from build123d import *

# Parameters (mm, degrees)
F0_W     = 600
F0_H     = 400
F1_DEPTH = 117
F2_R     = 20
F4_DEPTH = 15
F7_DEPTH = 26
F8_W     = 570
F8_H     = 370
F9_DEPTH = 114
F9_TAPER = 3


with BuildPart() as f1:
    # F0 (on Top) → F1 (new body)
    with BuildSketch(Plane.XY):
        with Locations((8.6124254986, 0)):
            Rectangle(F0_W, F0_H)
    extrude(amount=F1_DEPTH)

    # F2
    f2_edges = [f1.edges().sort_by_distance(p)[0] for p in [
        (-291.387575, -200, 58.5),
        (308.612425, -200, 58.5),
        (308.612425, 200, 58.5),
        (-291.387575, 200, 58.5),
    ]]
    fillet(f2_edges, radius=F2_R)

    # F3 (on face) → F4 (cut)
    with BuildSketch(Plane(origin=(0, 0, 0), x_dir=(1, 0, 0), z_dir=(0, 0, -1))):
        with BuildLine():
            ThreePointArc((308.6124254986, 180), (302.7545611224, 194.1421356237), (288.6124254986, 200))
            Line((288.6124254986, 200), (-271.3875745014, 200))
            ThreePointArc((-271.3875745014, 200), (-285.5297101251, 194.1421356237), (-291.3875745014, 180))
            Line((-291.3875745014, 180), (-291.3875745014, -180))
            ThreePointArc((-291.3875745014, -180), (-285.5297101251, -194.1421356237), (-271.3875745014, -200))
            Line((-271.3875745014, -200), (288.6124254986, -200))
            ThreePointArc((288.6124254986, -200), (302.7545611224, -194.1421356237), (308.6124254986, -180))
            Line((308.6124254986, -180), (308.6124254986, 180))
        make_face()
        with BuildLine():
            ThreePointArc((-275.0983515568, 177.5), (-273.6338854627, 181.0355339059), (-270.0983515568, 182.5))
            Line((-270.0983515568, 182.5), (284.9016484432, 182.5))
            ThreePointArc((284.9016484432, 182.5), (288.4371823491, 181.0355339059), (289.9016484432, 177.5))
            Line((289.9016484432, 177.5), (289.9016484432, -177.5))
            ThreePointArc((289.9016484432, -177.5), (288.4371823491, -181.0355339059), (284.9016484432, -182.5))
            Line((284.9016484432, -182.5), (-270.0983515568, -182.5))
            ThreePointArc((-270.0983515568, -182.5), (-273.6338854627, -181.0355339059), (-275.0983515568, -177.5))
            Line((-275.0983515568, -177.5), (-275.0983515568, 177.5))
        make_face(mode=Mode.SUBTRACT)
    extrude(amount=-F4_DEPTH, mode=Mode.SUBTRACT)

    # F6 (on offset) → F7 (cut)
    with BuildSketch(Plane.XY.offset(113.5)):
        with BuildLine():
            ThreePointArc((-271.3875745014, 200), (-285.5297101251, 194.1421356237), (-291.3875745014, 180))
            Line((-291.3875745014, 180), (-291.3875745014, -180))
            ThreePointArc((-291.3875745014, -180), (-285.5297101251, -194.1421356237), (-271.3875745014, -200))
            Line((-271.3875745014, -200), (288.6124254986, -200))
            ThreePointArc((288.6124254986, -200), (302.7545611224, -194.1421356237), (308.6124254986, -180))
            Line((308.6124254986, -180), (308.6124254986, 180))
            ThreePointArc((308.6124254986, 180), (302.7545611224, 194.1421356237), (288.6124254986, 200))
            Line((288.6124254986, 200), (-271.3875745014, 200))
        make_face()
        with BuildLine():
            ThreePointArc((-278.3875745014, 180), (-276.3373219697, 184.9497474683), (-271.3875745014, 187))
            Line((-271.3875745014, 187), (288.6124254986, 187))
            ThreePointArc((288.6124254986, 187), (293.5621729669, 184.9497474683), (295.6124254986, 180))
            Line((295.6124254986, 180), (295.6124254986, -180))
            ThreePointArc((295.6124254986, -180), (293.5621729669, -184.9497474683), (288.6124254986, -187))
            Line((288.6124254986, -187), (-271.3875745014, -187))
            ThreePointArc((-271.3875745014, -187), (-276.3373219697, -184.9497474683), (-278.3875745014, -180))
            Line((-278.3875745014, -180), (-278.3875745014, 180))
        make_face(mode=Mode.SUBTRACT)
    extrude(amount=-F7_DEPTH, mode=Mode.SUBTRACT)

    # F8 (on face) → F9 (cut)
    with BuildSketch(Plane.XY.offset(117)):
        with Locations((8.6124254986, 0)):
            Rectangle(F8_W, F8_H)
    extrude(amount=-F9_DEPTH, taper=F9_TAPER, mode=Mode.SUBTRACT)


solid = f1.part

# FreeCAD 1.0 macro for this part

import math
import FreeCAD as App
import Part
import Sketcher
from FreeCAD import Vector


def edges_at(feature, points):
    """Names of the edges that pass closest to the given points."""
    edges = feature.Shape.Edges
    near = lambda p: min(range(len(edges)), key=lambda i: edges[i].distToShape(Part.Vertex(*p))[0])
    return sorted({f"Edge{near(p) + 1}" for p in points})


def add_polygon(sketch, points):
    """Adds a closed chain of lines whose ends are joined by coincident constraints."""
    first, n = sketch.GeometryCount, len(points)
    for a, b in zip(points, points[1:] + points[:1]):
        sketch.addGeometry(Part.LineSegment(App.Vector(*a, 0), App.Vector(*b, 0)), False)
    for i in range(n):
        sketch.addConstraint(Sketcher.Constraint("Coincident", first + i, 2, first + (i + 1) % n, 1))

doc = App.newDocument("Part")
params = doc.addObject("Spreadsheet::Sheet", "Params")
for row, (alias, value) in enumerate([
    ("sketch1_width", "600 mm"),
    ("sketch1_height", "400 mm"),
    ("pad1_length", "117 mm"),
    ("fillet_radius", "20 mm"),
    ("sketch2_radius", "20 mm"),
    ("sketch2_radius2", "5 mm"),
    ("sketch2_width", "560 mm"),
    ("sketch2_width2", "555 mm"),
    ("sketch2_height", "360 mm"),
    ("pocket1_length", "15 mm"),
    ("sketch3_radius", "20 mm"),
    ("sketch3_radius2", "7 mm"),
    ("sketch3_width", "560 mm"),
    ("sketch3_height", "360 mm"),
    ("pocket2_length", "26 mm"),
    ("sketch4_width", "570 mm"),
    ("sketch4_height", "370 mm"),
    ("pocket3_length", "114 mm"),
    ("pocket3_taper", "-3 deg"),
], start=1):
    params.set(f"A{row}", alias)
    params.set(f"B{row}", "=" + value)
    params.setAlias(f"B{row}", alias)

body = doc.addObject("PartDesign::Body", "Body")

# Sketch on XY plane
sketch1 = body.newObject("Sketcher::SketchObject", "Sketch")
sketch1.AttachmentSupport = (doc.getObject("XY_Plane"), [""])
sketch1.MapMode = "FlatFace"
add_polygon(sketch1, [(-291.387575, 200), (-291.387575, -200), (308.612425, -200), (308.612425, 200)])  # lines 0-3
sketch1.addConstraint(Sketcher.Constraint("Vertical", 0))
sketch1.addConstraint(Sketcher.Constraint("Horizontal", 1))
sketch1.addConstraint(Sketcher.Constraint("Vertical", 2))
sketch1.addConstraint(Sketcher.Constraint("Horizontal", 3))
sketch1.addConstraint(Sketcher.Constraint("DistanceX", 1, 1, 1, 2, 600.0))
sketch1.addConstraint(Sketcher.Constraint("DistanceY", 0, 2, 0, 1, 400.0))
sketch1.addConstraint(Sketcher.Constraint("DistanceY", 0, 2, -1, 1, 200.0))
sketch1.addConstraint(Sketcher.Constraint("DistanceX", 0, 2, -1, 1, 291.387575))
sketch1.setExpression("Constraints[8]", "Params.sketch1_width")
sketch1.setExpression("Constraints[9]", "Params.sketch1_height")
pad1 = body.newObject("PartDesign::Pad", "Pad")
pad1.Profile = sketch1
pad1.setExpression("Length", "Params.pad1_length")
doc.recompute()

fillet = body.newObject("PartDesign::Fillet", "Fillet")
fillet.Base = (pad1, edges_at(pad1, [
    (-291.388, -200, 58.5),
    (308.612, -200, 58.5),
    (308.612, 200, 58.5),
    (-291.388, 200, 58.5),
]))
fillet.setExpression("Radius", "Params.fillet_radius")

# Sketch on XY plane
sketch2 = body.newObject("Sketcher::SketchObject", "Sketch001")
sketch2.AttachmentSupport = (doc.getObject("XY_Plane"), [""])
sketch2.MapMode = "FlatFace"
sketch2.addGeometry(Part.ArcOfCircle(Part.Circle(Vector(288.612425, -180, 0), Vector(0, 0, 1), 20), math.radians(-90), math.radians(0)), False)
sketch2.addGeometry(Part.LineSegment(Vector(288.612425, -200, 0), Vector(-271.387575, -200, 0)), False)
sketch2.addGeometry(Part.ArcOfCircle(Part.Circle(Vector(-271.387575, -180, 0), Vector(0, 0, 1), 20), math.radians(180), math.radians(270)), False)
sketch2.addGeometry(Part.LineSegment(Vector(-291.387575, -180, 0), Vector(-291.387575, 180, 0)), False)
sketch2.addGeometry(Part.ArcOfCircle(Part.Circle(Vector(-271.387575, 180, 0), Vector(0, 0, 1), 20), math.radians(90), math.radians(180)), False)
sketch2.addGeometry(Part.LineSegment(Vector(-271.387575, 200, 0), Vector(288.612425, 200, 0)), False)
sketch2.addGeometry(Part.ArcOfCircle(Part.Circle(Vector(288.612425, 180, 0), Vector(0, 0, 1), 20), math.radians(0), math.radians(90)), False)
sketch2.addGeometry(Part.LineSegment(Vector(308.612425, 180, 0), Vector(308.612425, -180, 0)), False)
sketch2.addGeometry(Part.LineSegment(Vector(-275.098352, 177.5, 0), Vector(-275.098352, -177.5, 0)), False)
sketch2.addGeometry(Part.ArcOfCircle(Part.Circle(Vector(-270.098352, -177.5, 0), Vector(0, 0, 1), 5), math.radians(180), math.radians(270)), False)
sketch2.addGeometry(Part.LineSegment(Vector(-270.098352, -182.5, 0), Vector(284.901648, -182.5, 0)), False)
sketch2.addGeometry(Part.ArcOfCircle(Part.Circle(Vector(284.901648, -177.5, 0), Vector(0, 0, 1), 5), math.radians(-90), math.radians(0)), False)
sketch2.addGeometry(Part.LineSegment(Vector(289.901648, -177.5, 0), Vector(289.901648, 177.5, 0)), False)
sketch2.addGeometry(Part.ArcOfCircle(Part.Circle(Vector(284.901648, 177.5, 0), Vector(0, 0, 1), 5), math.radians(0), math.radians(90)), False)
sketch2.addGeometry(Part.LineSegment(Vector(284.901648, 182.5, 0), Vector(-270.098352, 182.5, 0)), False)
sketch2.addGeometry(Part.ArcOfCircle(Part.Circle(Vector(-270.098352, 177.5, 0), Vector(0, 0, 1), 5), math.radians(90), math.radians(180)), False)
sketch2.addConstraint(Sketcher.Constraint("Tangent", 0, 1, 1, 1))
sketch2.addConstraint(Sketcher.Constraint("Tangent", 1, 2, 2, 2))
sketch2.addConstraint(Sketcher.Constraint("Tangent", 2, 1, 3, 1))
sketch2.addConstraint(Sketcher.Constraint("Tangent", 3, 2, 4, 2))
sketch2.addConstraint(Sketcher.Constraint("Tangent", 4, 1, 5, 1))
sketch2.addConstraint(Sketcher.Constraint("Tangent", 5, 2, 6, 2))
sketch2.addConstraint(Sketcher.Constraint("Tangent", 6, 1, 7, 1))
sketch2.addConstraint(Sketcher.Constraint("Tangent", 7, 2, 0, 2))
sketch2.addConstraint(Sketcher.Constraint("Tangent", 8, 2, 9, 1))
sketch2.addConstraint(Sketcher.Constraint("Tangent", 9, 2, 10, 1))
sketch2.addConstraint(Sketcher.Constraint("Tangent", 10, 2, 11, 1))
sketch2.addConstraint(Sketcher.Constraint("Tangent", 11, 2, 12, 1))
sketch2.addConstraint(Sketcher.Constraint("Tangent", 12, 2, 13, 1))
sketch2.addConstraint(Sketcher.Constraint("Tangent", 13, 2, 14, 1))
sketch2.addConstraint(Sketcher.Constraint("Tangent", 14, 2, 15, 1))
sketch2.addConstraint(Sketcher.Constraint("Tangent", 15, 2, 8, 1))
sketch2.addConstraint(Sketcher.Constraint("Horizontal", 1))
sketch2.addConstraint(Sketcher.Constraint("Vertical", 3))
sketch2.addConstraint(Sketcher.Constraint("Horizontal", 5))
sketch2.addConstraint(Sketcher.Constraint("Vertical", 7))
sketch2.addConstraint(Sketcher.Constraint("Vertical", 8))
sketch2.addConstraint(Sketcher.Constraint("Horizontal", 10))
sketch2.addConstraint(Sketcher.Constraint("Vertical", 12))
sketch2.addConstraint(Sketcher.Constraint("Horizontal", 14))
sketch2.addConstraint(Sketcher.Constraint("Equal", 0, 2))
sketch2.addConstraint(Sketcher.Constraint("Equal", 2, 4))
sketch2.addConstraint(Sketcher.Constraint("Equal", 4, 6))
sketch2.addConstraint(Sketcher.Constraint("Equal", 9, 11))
sketch2.addConstraint(Sketcher.Constraint("Equal", 11, 13))
sketch2.addConstraint(Sketcher.Constraint("Equal", 13, 15))
sketch2.addConstraint(Sketcher.Constraint("Radius", 0, 20.0))
sketch2.addConstraint(Sketcher.Constraint("Radius", 9, 5.0))
sketch2.addConstraint(Sketcher.Constraint("DistanceX", 1, 2, 1, 1, 560.0))
sketch2.addConstraint(Sketcher.Constraint("DistanceX", 10, 1, 10, 2, 555.0))
sketch2.addConstraint(Sketcher.Constraint("DistanceY", 3, 1, 3, 2, 360.0))
sketch2.addConstraint(Sketcher.Constraint("DistanceY", 8, 2, 8, 1, 355.0))
sketch2.addConstraint(Sketcher.Constraint("DistanceY", 0, 3, -1, 1, 180.0))
sketch2.addConstraint(Sketcher.Constraint("DistanceY", 9, 3, -1, 1, 177.5))
sketch2.addConstraint(Sketcher.Constraint("DistanceX", 9, 3, -1, 1, 270.098352))
sketch2.addConstraint(Sketcher.Constraint("DistanceX", -1, 1, 0, 3, 288.612425))
sketch2.setExpression("Constraints[30]", "Params.sketch2_radius")
sketch2.setExpression("Constraints[31]", "Params.sketch2_radius2")
sketch2.setExpression("Constraints[32]", "Params.sketch2_width")
sketch2.setExpression("Constraints[33]", "Params.sketch2_width2")
sketch2.setExpression("Constraints[34]", "Params.sketch2_height")
pocket1 = body.newObject("PartDesign::Pocket", "Pocket")
pocket1.Profile = sketch2
pocket1.setExpression("Length", "Params.pocket1_length")
pocket1.Reversed = True

# Sketch on XY plane
sketch3 = body.newObject("Sketcher::SketchObject", "Sketch002")
sketch3.AttachmentSupport = (doc.getObject("XY_Plane"), [""])
sketch3.MapMode = "FlatFace"
sketch3.AttachmentOffset = App.Placement(Vector(0, 0, 113.5), App.Rotation())
sketch3.addGeometry(Part.ArcOfCircle(Part.Circle(Vector(-271.387575, 180, 0), Vector(0, 0, 1), 20), math.radians(90), math.radians(180)), False)
sketch3.addGeometry(Part.LineSegment(Vector(-291.387575, 180, 0), Vector(-291.387575, -180, 0)), False)
sketch3.addGeometry(Part.ArcOfCircle(Part.Circle(Vector(-271.387575, -180, 0), Vector(0, 0, 1), 20), math.radians(180), math.radians(270)), False)
sketch3.addGeometry(Part.LineSegment(Vector(-271.387575, -200, 0), Vector(288.612425, -200, 0)), False)
sketch3.addGeometry(Part.ArcOfCircle(Part.Circle(Vector(288.612425, -180, 0), Vector(0, 0, 1), 20), math.radians(-90), math.radians(0)), False)
sketch3.addGeometry(Part.LineSegment(Vector(308.612425, -180, 0), Vector(308.612425, 180, 0)), False)
sketch3.addGeometry(Part.ArcOfCircle(Part.Circle(Vector(288.612425, 180, 0), Vector(0, 0, 1), 20), math.radians(0), math.radians(90)), False)
sketch3.addGeometry(Part.LineSegment(Vector(288.612425, 200, 0), Vector(-271.387575, 200, 0)), False)
sketch3.addGeometry(Part.LineSegment(Vector(-278.387575, -180, 0), Vector(-278.387575, 180, 0)), False)
sketch3.addGeometry(Part.ArcOfCircle(Part.Circle(Vector(-271.387575, 180, 0), Vector(0, 0, 1), 7), math.radians(90), math.radians(180)), False)
sketch3.addGeometry(Part.LineSegment(Vector(-271.387575, 187, 0), Vector(288.612425, 187, 0)), False)
sketch3.addGeometry(Part.ArcOfCircle(Part.Circle(Vector(288.612425, 180, 0), Vector(0, 0, 1), 7), math.radians(0), math.radians(90)), False)
sketch3.addGeometry(Part.LineSegment(Vector(295.612425, 180, 0), Vector(295.612425, -180, 0)), False)
sketch3.addGeometry(Part.ArcOfCircle(Part.Circle(Vector(288.612425, -180, 0), Vector(0, 0, 1), 7), math.radians(-90), math.radians(0)), False)
sketch3.addGeometry(Part.LineSegment(Vector(288.612425, -187, 0), Vector(-271.387575, -187, 0)), False)
sketch3.addGeometry(Part.ArcOfCircle(Part.Circle(Vector(-271.387575, -180, 0), Vector(0, 0, 1), 7), math.radians(180), math.radians(270)), False)
sketch3.addConstraint(Sketcher.Constraint("Tangent", 0, 2, 1, 1))
sketch3.addConstraint(Sketcher.Constraint("Tangent", 1, 2, 2, 1))
sketch3.addConstraint(Sketcher.Constraint("Tangent", 2, 2, 3, 1))
sketch3.addConstraint(Sketcher.Constraint("Tangent", 3, 2, 4, 1))
sketch3.addConstraint(Sketcher.Constraint("Tangent", 4, 2, 5, 1))
sketch3.addConstraint(Sketcher.Constraint("Tangent", 5, 2, 6, 1))
sketch3.addConstraint(Sketcher.Constraint("Tangent", 6, 2, 7, 1))
sketch3.addConstraint(Sketcher.Constraint("Tangent", 7, 2, 0, 1))
sketch3.addConstraint(Sketcher.Constraint("Tangent", 8, 2, 9, 2))
sketch3.addConstraint(Sketcher.Constraint("Tangent", 9, 1, 10, 1))
sketch3.addConstraint(Sketcher.Constraint("Tangent", 10, 2, 11, 2))
sketch3.addConstraint(Sketcher.Constraint("Tangent", 11, 1, 12, 1))
sketch3.addConstraint(Sketcher.Constraint("Tangent", 12, 2, 13, 2))
sketch3.addConstraint(Sketcher.Constraint("Tangent", 13, 1, 14, 1))
sketch3.addConstraint(Sketcher.Constraint("Tangent", 14, 2, 15, 2))
sketch3.addConstraint(Sketcher.Constraint("Tangent", 15, 1, 8, 1))
sketch3.addConstraint(Sketcher.Constraint("Vertical", 1))
sketch3.addConstraint(Sketcher.Constraint("Horizontal", 3))
sketch3.addConstraint(Sketcher.Constraint("Vertical", 5))
sketch3.addConstraint(Sketcher.Constraint("Horizontal", 7))
sketch3.addConstraint(Sketcher.Constraint("Vertical", 8))
sketch3.addConstraint(Sketcher.Constraint("Horizontal", 10))
sketch3.addConstraint(Sketcher.Constraint("Vertical", 12))
sketch3.addConstraint(Sketcher.Constraint("Horizontal", 14))
sketch3.addConstraint(Sketcher.Constraint("Coincident", 9, 3, 0, 3))
sketch3.addConstraint(Sketcher.Constraint("Coincident", 11, 3, 6, 3))
sketch3.addConstraint(Sketcher.Constraint("Coincident", 13, 3, 4, 3))
sketch3.addConstraint(Sketcher.Constraint("Equal", 0, 2))
sketch3.addConstraint(Sketcher.Constraint("Equal", 2, 4))
sketch3.addConstraint(Sketcher.Constraint("Equal", 4, 6))
sketch3.addConstraint(Sketcher.Constraint("Equal", 13, 15))
sketch3.addConstraint(Sketcher.Constraint("Radius", 0, 20.0))
sketch3.addConstraint(Sketcher.Constraint("Radius", 9, 7.0))
sketch3.addConstraint(Sketcher.Constraint("DistanceX", 3, 1, 3, 2, 560.0))
sketch3.addConstraint(Sketcher.Constraint("DistanceY", 1, 2, 1, 1, 360.0))
sketch3.addConstraint(Sketcher.Constraint("DistanceY", -1, 1, 0, 3, 180.0))
sketch3.addConstraint(Sketcher.Constraint("DistanceX", 0, 3, -1, 1, 271.387575))
sketch3.setExpression("Constraints[31]", "Params.sketch3_radius")
sketch3.setExpression("Constraints[32]", "Params.sketch3_radius2")
sketch3.setExpression("Constraints[33]", "Params.sketch3_width")
sketch3.setExpression("Constraints[34]", "Params.sketch3_height")
pocket2 = body.newObject("PartDesign::Pocket", "Pocket001")
pocket2.Profile = sketch3
pocket2.setExpression("Length", "Params.pocket2_length")

# Sketch on XY plane
sketch4 = body.newObject("Sketcher::SketchObject", "Sketch003")
sketch4.AttachmentSupport = (doc.getObject("XY_Plane"), [""])
sketch4.MapMode = "FlatFace"
sketch4.AttachmentOffset = App.Placement(Vector(0, 0, 117), App.Rotation())
add_polygon(sketch4, [(-276.387575, 185), (-276.387575, -185), (293.612425, -185), (293.612425, 185)])  # lines 0-3
sketch4.addConstraint(Sketcher.Constraint("Vertical", 0))
sketch4.addConstraint(Sketcher.Constraint("Horizontal", 1))
sketch4.addConstraint(Sketcher.Constraint("Vertical", 2))
sketch4.addConstraint(Sketcher.Constraint("Horizontal", 3))
sketch4.addConstraint(Sketcher.Constraint("DistanceX", 1, 1, 1, 2, 570.0))
sketch4.addConstraint(Sketcher.Constraint("DistanceY", 0, 2, 0, 1, 370.0))
sketch4.addConstraint(Sketcher.Constraint("DistanceY", 0, 2, -1, 1, 185.0))
sketch4.addConstraint(Sketcher.Constraint("DistanceX", 0, 2, -1, 1, 276.387575))
sketch4.setExpression("Constraints[8]", "Params.sketch4_width")
sketch4.setExpression("Constraints[9]", "Params.sketch4_height")
pocket3 = body.newObject("PartDesign::Pocket", "Pocket002")
pocket3.Profile = sketch4
pocket3.setExpression("Length", "Params.pocket3_length")
pocket3.setExpression("TaperAngle", "Params.pocket3_taper")

doc.recompute()
